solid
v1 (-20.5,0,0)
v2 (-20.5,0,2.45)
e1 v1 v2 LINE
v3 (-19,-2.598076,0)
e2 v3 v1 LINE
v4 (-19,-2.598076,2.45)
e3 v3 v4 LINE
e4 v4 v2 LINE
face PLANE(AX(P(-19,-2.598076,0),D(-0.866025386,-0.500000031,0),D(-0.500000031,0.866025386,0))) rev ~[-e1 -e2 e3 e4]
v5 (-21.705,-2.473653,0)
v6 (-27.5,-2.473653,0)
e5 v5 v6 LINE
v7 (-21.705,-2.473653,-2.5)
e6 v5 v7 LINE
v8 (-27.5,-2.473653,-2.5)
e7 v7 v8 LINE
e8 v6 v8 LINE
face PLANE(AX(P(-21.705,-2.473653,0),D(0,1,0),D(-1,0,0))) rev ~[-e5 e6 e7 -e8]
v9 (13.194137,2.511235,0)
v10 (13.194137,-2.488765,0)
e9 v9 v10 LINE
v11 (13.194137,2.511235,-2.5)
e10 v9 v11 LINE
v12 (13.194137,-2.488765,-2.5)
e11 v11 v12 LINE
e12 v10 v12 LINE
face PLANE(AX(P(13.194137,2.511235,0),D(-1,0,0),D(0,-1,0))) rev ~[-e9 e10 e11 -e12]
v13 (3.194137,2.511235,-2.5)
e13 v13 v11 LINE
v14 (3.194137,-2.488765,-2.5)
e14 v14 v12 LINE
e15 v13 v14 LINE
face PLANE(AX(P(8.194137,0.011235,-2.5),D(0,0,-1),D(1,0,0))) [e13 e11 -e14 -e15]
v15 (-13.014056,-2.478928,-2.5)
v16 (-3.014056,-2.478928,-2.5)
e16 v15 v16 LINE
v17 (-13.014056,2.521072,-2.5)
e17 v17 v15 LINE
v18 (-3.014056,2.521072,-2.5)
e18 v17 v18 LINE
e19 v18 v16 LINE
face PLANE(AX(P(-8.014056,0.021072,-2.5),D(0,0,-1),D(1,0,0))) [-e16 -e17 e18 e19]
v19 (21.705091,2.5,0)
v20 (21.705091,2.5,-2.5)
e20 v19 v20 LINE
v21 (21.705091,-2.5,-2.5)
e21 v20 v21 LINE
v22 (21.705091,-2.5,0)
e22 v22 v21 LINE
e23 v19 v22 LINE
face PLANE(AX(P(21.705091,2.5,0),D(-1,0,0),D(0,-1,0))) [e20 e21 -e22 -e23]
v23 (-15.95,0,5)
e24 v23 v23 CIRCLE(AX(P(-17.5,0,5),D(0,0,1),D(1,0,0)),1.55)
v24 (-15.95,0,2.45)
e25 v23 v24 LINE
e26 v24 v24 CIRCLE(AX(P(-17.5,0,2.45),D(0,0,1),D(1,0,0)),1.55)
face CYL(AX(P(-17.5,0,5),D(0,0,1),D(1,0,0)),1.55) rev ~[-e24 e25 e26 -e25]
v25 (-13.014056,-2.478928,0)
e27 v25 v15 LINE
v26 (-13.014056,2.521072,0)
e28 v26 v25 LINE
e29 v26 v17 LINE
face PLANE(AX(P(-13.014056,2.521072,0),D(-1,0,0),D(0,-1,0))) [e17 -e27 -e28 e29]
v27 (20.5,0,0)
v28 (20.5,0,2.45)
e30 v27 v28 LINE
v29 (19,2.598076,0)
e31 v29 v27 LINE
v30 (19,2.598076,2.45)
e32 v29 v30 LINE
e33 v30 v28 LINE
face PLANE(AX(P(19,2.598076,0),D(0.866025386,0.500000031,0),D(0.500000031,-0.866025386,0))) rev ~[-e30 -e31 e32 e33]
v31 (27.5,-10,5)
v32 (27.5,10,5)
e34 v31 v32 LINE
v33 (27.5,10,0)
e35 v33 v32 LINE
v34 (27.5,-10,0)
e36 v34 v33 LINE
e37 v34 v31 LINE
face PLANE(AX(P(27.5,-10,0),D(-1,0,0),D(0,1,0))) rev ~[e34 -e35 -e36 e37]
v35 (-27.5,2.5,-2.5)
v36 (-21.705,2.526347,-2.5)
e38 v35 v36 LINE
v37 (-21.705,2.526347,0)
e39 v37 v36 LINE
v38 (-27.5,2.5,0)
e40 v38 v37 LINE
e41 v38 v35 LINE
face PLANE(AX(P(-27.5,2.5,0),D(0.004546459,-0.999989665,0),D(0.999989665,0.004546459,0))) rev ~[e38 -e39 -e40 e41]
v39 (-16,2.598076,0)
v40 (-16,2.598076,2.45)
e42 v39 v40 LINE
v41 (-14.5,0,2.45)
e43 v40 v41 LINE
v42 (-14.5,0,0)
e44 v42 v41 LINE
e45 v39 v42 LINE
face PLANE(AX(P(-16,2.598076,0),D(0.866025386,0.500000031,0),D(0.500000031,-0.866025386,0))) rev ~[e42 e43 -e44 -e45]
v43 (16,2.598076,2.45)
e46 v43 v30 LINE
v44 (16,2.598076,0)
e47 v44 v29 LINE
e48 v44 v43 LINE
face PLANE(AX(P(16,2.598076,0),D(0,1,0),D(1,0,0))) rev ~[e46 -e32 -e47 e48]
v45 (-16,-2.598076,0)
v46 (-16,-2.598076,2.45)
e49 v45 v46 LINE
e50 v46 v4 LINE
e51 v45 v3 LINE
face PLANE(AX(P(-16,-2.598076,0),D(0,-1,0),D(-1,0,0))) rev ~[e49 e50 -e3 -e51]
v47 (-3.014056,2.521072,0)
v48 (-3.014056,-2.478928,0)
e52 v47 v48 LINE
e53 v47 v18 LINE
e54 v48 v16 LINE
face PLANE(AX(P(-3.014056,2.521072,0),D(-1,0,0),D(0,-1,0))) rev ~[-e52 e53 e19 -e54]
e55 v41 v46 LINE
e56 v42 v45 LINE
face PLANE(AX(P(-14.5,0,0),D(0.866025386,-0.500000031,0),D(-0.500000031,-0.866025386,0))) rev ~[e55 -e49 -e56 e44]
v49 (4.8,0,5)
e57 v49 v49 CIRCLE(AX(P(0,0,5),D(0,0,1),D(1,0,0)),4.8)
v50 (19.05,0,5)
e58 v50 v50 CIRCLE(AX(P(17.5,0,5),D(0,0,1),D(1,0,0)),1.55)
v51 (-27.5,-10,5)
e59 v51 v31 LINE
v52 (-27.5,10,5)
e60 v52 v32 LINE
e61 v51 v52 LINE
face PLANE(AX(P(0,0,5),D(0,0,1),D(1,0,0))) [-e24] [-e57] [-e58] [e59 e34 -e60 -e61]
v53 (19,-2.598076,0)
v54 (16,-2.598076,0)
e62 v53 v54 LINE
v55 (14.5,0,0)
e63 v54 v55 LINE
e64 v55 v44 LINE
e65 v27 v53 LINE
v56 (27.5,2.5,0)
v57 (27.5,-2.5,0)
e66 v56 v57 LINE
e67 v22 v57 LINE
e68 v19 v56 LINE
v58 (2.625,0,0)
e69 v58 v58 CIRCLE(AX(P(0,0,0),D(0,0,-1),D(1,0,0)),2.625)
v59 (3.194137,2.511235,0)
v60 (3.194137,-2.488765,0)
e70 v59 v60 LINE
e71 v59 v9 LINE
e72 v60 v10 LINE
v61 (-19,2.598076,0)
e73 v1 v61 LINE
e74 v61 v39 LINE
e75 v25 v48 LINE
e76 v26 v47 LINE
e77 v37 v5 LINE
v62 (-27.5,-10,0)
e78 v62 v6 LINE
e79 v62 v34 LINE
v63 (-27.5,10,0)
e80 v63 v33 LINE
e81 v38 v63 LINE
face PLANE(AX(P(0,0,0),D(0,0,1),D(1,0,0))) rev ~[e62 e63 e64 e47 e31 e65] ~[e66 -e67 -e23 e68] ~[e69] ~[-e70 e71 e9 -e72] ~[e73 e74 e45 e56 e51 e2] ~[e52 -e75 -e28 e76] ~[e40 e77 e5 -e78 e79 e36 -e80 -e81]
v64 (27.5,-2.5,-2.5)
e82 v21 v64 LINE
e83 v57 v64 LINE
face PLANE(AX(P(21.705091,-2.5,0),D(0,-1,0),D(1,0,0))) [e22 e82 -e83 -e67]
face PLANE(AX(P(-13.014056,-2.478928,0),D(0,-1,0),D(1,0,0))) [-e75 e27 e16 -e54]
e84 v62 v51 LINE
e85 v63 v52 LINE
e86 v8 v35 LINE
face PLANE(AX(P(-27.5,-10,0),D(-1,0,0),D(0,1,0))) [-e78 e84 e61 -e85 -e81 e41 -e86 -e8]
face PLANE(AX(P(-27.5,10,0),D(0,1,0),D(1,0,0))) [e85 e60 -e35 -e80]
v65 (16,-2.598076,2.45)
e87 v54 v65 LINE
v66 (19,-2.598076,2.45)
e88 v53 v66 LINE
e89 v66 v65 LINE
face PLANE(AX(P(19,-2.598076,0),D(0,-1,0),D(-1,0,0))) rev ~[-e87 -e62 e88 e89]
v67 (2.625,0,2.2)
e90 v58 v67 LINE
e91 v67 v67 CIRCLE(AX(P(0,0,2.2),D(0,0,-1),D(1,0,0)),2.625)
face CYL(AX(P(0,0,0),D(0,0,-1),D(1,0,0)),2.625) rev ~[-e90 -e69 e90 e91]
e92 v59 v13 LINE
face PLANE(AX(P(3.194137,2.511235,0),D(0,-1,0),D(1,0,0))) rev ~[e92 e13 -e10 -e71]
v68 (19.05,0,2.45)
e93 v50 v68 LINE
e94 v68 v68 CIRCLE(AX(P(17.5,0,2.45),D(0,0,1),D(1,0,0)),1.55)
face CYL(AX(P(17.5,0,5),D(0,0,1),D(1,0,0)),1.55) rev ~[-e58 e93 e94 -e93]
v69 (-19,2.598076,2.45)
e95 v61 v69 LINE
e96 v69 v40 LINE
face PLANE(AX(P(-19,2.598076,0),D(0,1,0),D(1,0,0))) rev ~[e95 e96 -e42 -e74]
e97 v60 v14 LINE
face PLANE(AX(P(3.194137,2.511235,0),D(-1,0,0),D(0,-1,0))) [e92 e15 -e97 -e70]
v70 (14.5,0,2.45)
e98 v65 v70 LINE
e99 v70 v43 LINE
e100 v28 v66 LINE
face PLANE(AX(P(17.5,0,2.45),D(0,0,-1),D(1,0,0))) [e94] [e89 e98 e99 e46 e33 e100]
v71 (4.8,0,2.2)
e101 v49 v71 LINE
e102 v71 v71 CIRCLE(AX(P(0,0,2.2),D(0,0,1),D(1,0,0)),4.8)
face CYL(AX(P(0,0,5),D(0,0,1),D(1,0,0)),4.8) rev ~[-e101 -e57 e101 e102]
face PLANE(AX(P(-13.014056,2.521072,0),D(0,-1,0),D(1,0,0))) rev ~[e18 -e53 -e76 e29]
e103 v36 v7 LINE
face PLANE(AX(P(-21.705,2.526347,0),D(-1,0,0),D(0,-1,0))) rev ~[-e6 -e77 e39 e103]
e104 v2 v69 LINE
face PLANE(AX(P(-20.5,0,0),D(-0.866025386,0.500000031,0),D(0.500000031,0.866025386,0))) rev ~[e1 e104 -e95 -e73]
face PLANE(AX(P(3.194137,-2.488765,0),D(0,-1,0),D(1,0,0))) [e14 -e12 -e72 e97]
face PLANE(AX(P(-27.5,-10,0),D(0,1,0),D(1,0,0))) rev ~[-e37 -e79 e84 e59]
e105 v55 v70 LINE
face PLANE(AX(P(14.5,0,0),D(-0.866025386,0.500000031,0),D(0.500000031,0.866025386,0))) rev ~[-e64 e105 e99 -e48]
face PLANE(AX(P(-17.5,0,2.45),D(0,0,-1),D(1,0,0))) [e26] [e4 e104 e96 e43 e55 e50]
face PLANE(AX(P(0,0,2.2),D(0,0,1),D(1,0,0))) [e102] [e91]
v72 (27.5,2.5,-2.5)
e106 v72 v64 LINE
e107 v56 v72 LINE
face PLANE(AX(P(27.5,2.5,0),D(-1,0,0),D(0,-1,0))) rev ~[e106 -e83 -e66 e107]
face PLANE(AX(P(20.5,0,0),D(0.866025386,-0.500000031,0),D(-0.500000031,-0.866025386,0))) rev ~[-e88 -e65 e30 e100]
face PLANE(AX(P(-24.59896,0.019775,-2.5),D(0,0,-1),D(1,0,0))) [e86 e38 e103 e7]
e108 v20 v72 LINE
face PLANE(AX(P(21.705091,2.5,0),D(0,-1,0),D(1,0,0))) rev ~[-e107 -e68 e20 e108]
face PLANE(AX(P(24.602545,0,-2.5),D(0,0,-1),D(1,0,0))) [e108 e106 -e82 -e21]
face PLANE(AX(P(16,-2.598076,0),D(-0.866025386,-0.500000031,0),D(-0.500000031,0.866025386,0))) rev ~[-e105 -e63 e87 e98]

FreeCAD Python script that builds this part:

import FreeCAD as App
import Part
import Sketcher
Q = App.Units.Quantity


def add_polygon(sketch, points):
    """Adds a closed chain of lines whose ends are joined by coincident constraints."""
    first, n = sketch.GeometryCount, len(points)
    for a, b in zip(points, points[1:] + points[:1]):
        sketch.addGeometry(Part.LineSegment(App.Vector(*a, 0), App.Vector(*b, 0)), False)
    for i in range(n):
        sketch.addConstraint(Sketcher.Constraint("Coincident", first + i, 2, first + (i + 1) % n, 1))

doc = App.newDocument("Part")
params = doc.addObject("Spreadsheet::Sheet", "Params")
for row, (alias, value) in enumerate([
    ("sketch1_width", "55 mm"),
    ("sketch1_height", "20 mm"),
    ("pad1_length", "5 mm"),
    ("sketch2_diameter", "9.6 mm"),
    ("pocket1_length", "2.8 mm"),
    ("sketch3_diameter", "5.25 mm"),
    ("pocket2_length", "25 mm"),
    ("sketch4_diameter", "3.1 mm"),
    ("pocket3_length", "25 mm"),
    ("sketch5_width", "3 mm"),
    ("sketch5_length", "3 mm"),
    ("pocket4_length", "2.45 mm"),
    ("sketch6_width", "10 mm"),
    ("sketch6_height", "5 mm"),
    ("pad2_length", "2.5 mm"),
], start=1):
    params.set(f"A{row}", alias)
    params.set(f"B{row}", "=" + value)
    params.setAlias(f"B{row}", alias)

body = doc.addObject("PartDesign::Body", "Body")

sketch1 = doc.addObject("Sketcher::SketchObject", "Sketch")
body.addObject(sketch1)
sketch1.AttachmentSupport = (doc.XY_Plane, [""])
sketch1.MapMode = "FlatFace"
add_polygon(sketch1, [(-28, 10), (-28, -10), (28, -10), (28, 10)])
sketch1.addConstraint(Sketcher.Constraint("Vertical", 0))
sketch1.addConstraint(Sketcher.Constraint("Horizontal", 1))
sketch1.addConstraint(Sketcher.Constraint("Vertical", 2))
sketch1.addConstraint(Sketcher.Constraint("Horizontal", 3))
sketch1.addConstraint(Sketcher.Constraint("Symmetric", 0, 2, 2, 2, -1, 1))
sketch1.addConstraint(Sketcher.Constraint("DistanceX", 1, 1, 1, 2, 55.0))
sketch1.addConstraint(Sketcher.Constraint("DistanceY", 0, 2, 0, 1, 20.0))
sketch1.setExpression("Constraints[9]", "Params.sketch1_width")
sketch1.setExpression("Constraints[10]", "Params.sketch1_height")
pad1 = doc.addObject("PartDesign::Pad", "Pad")
body.addObject(pad1)
pad1.Profile = sketch1
pad1.setExpression("Length", "Params.pad1_length")

sketch2 = doc.addObject("Sketcher::SketchObject", "Sketch001")
body.addObject(sketch2)
sketch2.AttachmentSupport = (doc.XY_Plane, [""])
sketch2.MapMode = "FlatFace"
sketch2.AttachmentOffset = App.Placement(App.Vector(0, 0, 5), App.Rotation())
sketch2.addGeometry(Part.Circle(App.Vector(0, 0, 0), App.Vector(0, 0, 1), 4.8), False)
sketch2.addConstraint(Sketcher.Constraint("Coincident", 0, 3, -1, 1))
sketch2.addConstraint(Sketcher.Constraint("Diameter", 0, 9.6))
sketch2.setExpression("Constraints[1]", "Params.sketch2_diameter")
pocket1 = doc.addObject("PartDesign::Pocket", "Pocket")
body.addObject(pocket1)
pocket1.Profile = sketch2
pocket1.setExpression("Length", "Params.pocket1_length")

sketch3 = doc.addObject("Sketcher::SketchObject", "Sketch002")
body.addObject(sketch3)
sketch3.AttachmentSupport = (doc.XY_Plane, [""])
sketch3.MapMode = "FlatFace"
sketch3.addGeometry(Part.Circle(App.Vector(0, 0, 0), App.Vector(0, 0, 1), 2.6), False)
sketch3.addConstraint(Sketcher.Constraint("Coincident", 0, 3, -1, 1))
sketch3.addConstraint(Sketcher.Constraint("Diameter", 0, 5.25))
sketch3.setExpression("Constraints[1]", "Params.sketch3_diameter")
pocket2 = doc.addObject("PartDesign::Pocket", "Pocket001")
body.addObject(pocket2)
pocket2.Profile = sketch3
pocket2.setExpression("Length", "Params.pocket2_length")
pocket2.Reversed = True

sketch4 = doc.addObject("Sketcher::SketchObject", "Sketch003")
body.addObject(sketch4)
sketch4.AttachmentSupport = (doc.XY_Plane, [""])
sketch4.MapMode = "FlatFace"
sketch4.AttachmentOffset = App.Placement(App.Vector(0, 0, 5), App.Rotation())
sketch4.addGeometry(Part.Circle(App.Vector(-17.5, 0, 0), App.Vector(0, 0, 1), 1.6), False)
sketch4.addGeometry(Part.Circle(App.Vector(17.5, 0, 0), App.Vector(0, 0, 1), 1.6), False)
sketch4.addConstraint(Sketcher.Constraint("Equal", 0, 1))
sketch4.addConstraint(Sketcher.Constraint("Symmetric", 0, 3, 1, 3, -1, 1))
sketch4.addConstraint(Sketcher.Constraint("PointOnObject", 0, 3, -1))
sketch4.addConstraint(Sketcher.Constraint("Diameter", 0, 3.1))
sketch4.addConstraint(Sketcher.Constraint("DistanceX", 0, 3, 1, 3, 35.0))
sketch4.setExpression("Constraints[3]", "Params.sketch4_diameter")
pocket3 = doc.addObject("PartDesign::Pocket", "Pocket002")
body.addObject(pocket3)
pocket3.Profile = sketch4
pocket3.setExpression("Length", "Params.pocket3_length")

sketch5 = doc.addObject("Sketcher::SketchObject", "Sketch004")
body.addObject(sketch5)
sketch5.AttachmentSupport = (doc.XY_Plane, [""])
sketch5.MapMode = "FlatFace"
add_polygon(sketch5, [(-16, -2.6), (-19, -2.6), (-20.5, 0), (-19, 2.6), (-16, 2.6), (-14.5, 0)])
add_polygon(sketch5, [(19, -2.6), (16, -2.6), (14.5, 0), (16, 2.6), (19, 2.6), (20.5, 0)])
sketch5.addConstraint(Sketcher.Constraint("Horizontal", 0))
sketch5.addConstraint(Sketcher.Constraint("Horizontal", 3))
sketch5.addConstraint(Sketcher.Constraint("Horizontal", 6))
sketch5.addConstraint(Sketcher.Constraint("Horizontal", 9))
sketch5.addConstraint(Sketcher.Constraint("Symmetric", 3, 2, 6, 2, -1, 1))
sketch5.addConstraint(Sketcher.Constraint("Symmetric", 4, 2, 7, 2, -1, 1))
sketch5.addConstraint(Sketcher.Constraint("Symmetric", 5, 2, 8, 2, -1, 1))
sketch5.addConstraint(Sketcher.Constraint("Symmetric", 1, 2, 10, 2, -1, 1))
sketch5.addConstraint(Sketcher.Constraint("Symmetric", 5, 2, 6, 2, -2))
sketch5.addConstraint(Sketcher.Constraint("PointOnObject", 1, 2, -1))
sketch5.addConstraint(Sketcher.Constraint("PointOnObject", 4, 2, -1))
sketch5.addConstraint(Sketcher.Constraint("Parallel", 1, 4))
sketch5.addConstraint(Sketcher.Constraint("Parallel", 2, 5))
sketch5.addConstraint(Sketcher.Constraint("Parallel", 7, 10))
sketch5.addConstraint(Sketcher.Constraint("Parallel", 8, 11))
sketch5.addConstraint(Sketcher.Constraint("DistanceX", 0, 2, 0, 1, 3.0))
sketch5.addConstraint(Sketcher.Constraint("Angle", 1, Q("120.000002 deg")))
sketch5.addConstraint(Sketcher.Constraint("Distance", 1, 3.0))
sketch5.addConstraint(Sketcher.Constraint("DistanceX", 0, 2, -1, 1, 19.0))
sketch5.setExpression("Constraints[27]", "Params.sketch5_width")
sketch5.setExpression("Constraints[29]", "Params.sketch5_length")
pocket4 = doc.addObject("PartDesign::Pocket", "Pocket003")
body.addObject(pocket4)
pocket4.Profile = sketch5
pocket4.setExpression("Length", "Params.pocket4_length")
pocket4.Reversed = True

sketch6 = doc.addObject("Sketcher::SketchObject", "Sketch005")
body.addObject(sketch6)
sketch6.AttachmentSupport = (doc.XY_Plane, [""])
sketch6.MapMode = "FlatFace"
add_polygon(sketch6, [(-27.5, -2.5), (-27.5, 2.5), (-21.7, 2.5), (-21.7, -2.5)])
add_polygon(sketch6, [(-13, -2.5), (-13, 2.5), (-3, 2.5), (-3, -2.5)])
add_polygon(sketch6, [(3.2, -2.5), (3.2, 2.5), (13.2, 2.5), (13.2, -2.5)])
add_polygon(sketch6, [(21.7, -2.5), (21.7, 2.5), (27.5, 2.5), (27.5, -2.5)])
sketch6.addConstraint(Sketcher.Constraint("Vertical", 0))
sketch6.addConstraint(Sketcher.Constraint("Vertical", 2))
sketch6.addConstraint(Sketcher.Constraint("Horizontal", 3))
sketch6.addConstraint(Sketcher.Constraint("Vertical", 4))
sketch6.addConstraint(Sketcher.Constraint("Horizontal", 5))
sketch6.addConstraint(Sketcher.Constraint("Vertical", 6))
sketch6.addConstraint(Sketcher.Constraint("Horizontal", 7))
sketch6.addConstraint(Sketcher.Constraint("Vertical", 8))
sketch6.addConstraint(Sketcher.Constraint("Horizontal", 9))
sketch6.addConstraint(Sketcher.Constraint("Vertical", 10))
sketch6.addConstraint(Sketcher.Constraint("Horizontal", 11))
sketch6.addConstraint(Sketcher.Constraint("Vertical", 12))
sketch6.addConstraint(Sketcher.Constraint("Horizontal", 13))
sketch6.addConstraint(Sketcher.Constraint("Vertical", 14))
sketch6.addConstraint(Sketcher.Constraint("Horizontal", 15))
sketch6.addConstraint(Sketcher.Constraint("Symmetric", 0, 2, 14, 2, -1, 1))
sketch6.addConstraint(Sketcher.Constraint("Horizontal", 0, 2, 12, 2))
sketch6.addConstraint(Sketcher.Constraint("Equal", 7, 9))
sketch6.addConstraint(Sketcher.Constraint("Equal", 2, 4))
sketch6.addConstraint(Sketcher.Constraint("Equal", 6, 8))
sketch6.addConstraint(Sketcher.Constraint("Equal", 10, 12))
sketch6.addConstraint(Sketcher.Constraint("DistanceX", 5, 1, 5, 2, 10.0))
sketch6.addConstraint(Sketcher.Constraint("DistanceY", 2, 2, 2, 1, 5.0))
sketch6.addConstraint(Sketcher.Constraint("DistanceX", 0, 2, -1, 1, 27.5))
sketch6.addConstraint(Sketcher.Constraint("DistanceX", 3, 2, 3, 1, 5.795))
sketch6.addConstraint(Sketcher.Constraint("DistanceX", 13, 1, 13, 2, 5.794909))
sketch6.addConstraint(Sketcher.Constraint("DistanceY", 0, 1, 0, 2, 4.973653))
sketch6.addConstraint(Sketcher.Constraint("DistanceY", 8, 2, 1, 2, 0.015112))
sketch6.addConstraint(Sketcher.Constraint("DistanceX", 4, 2, -1, 1, 13.014056))
sketch6.addConstraint(Sketcher.Constraint("DistanceY", -1, 1, 4, 2, 2.521072))
sketch6.addConstraint(Sketcher.Constraint("DistanceX", -1, 1, 8, 2, 3.194137))
sketch6.setExpression("Constraints[37]", "Params.sketch6_width")
sketch6.setExpression("Constraints[38]", "Params.sketch6_height")
pad2 = doc.addObject("PartDesign::Pad", "Pad001")
body.addObject(pad2)
pad2.Profile = sketch6
pad2.setExpression("Length", "Params.pad2_length")
pad2.Reversed = True

doc.recompute()
